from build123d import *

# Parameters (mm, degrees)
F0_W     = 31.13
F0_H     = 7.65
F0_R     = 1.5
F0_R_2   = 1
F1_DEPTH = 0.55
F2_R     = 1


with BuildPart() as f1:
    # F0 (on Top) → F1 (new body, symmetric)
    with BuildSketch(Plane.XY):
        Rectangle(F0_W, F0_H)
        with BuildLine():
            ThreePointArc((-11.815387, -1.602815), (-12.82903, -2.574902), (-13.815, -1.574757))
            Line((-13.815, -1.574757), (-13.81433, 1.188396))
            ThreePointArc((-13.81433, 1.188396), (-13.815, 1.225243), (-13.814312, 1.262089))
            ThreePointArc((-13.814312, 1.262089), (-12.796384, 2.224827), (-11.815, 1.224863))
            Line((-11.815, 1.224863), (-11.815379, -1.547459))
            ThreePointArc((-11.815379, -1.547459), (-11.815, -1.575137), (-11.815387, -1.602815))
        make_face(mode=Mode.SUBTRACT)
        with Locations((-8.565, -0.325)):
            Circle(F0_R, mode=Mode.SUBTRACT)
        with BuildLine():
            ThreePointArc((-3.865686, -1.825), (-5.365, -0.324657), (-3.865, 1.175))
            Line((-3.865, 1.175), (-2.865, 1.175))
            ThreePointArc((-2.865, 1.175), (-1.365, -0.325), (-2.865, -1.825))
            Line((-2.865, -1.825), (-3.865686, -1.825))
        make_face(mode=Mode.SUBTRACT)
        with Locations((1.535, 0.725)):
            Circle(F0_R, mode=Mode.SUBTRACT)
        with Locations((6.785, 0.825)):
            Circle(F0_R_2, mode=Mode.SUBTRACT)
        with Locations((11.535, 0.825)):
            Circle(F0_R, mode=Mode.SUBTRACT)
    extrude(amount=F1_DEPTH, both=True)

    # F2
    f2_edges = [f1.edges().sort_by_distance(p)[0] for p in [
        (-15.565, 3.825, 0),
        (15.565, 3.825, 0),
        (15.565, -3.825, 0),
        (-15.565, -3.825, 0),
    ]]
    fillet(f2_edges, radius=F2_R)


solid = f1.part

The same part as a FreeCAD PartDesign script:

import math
import FreeCAD as App
import Part
import Sketcher
from FreeCAD import Vector


def edges_at(feature, points):
    """Names of the edges that pass closest to the given points."""
    edges = feature.Shape.Edges
    near = lambda p: min(range(len(edges)), key=lambda i: edges[i].distToShape(Part.Vertex(*p))[0])
    return sorted({f"Edge{near(p) + 1}" for p in points})

doc = App.newDocument("Part")
params = doc.addObject("Spreadsheet::Sheet", "Params")
for row, (alias, value) in enumerate([
    ("sketch1_diameter", "3 mm"),
    ("sketch1_diameter2", "3 mm"),
    ("sketch1_diameter3", "2 mm"),
    ("sketch1_diameter4", "3 mm"),
    ("sketch1_radius", "1 mm"),
    ("pad1_length", "1.1 mm"),
    ("fillet_radius", "1 mm"),
], start=1):
    params.set(f"A{row}", alias)
    params.set(f"B{row}", "=" + value)
    params.setAlias(f"B{row}", alias)

body = doc.addObject("PartDesign::Body", "Body")

# Sketch on XY plane
sketch1 = doc.addObject("Sketcher::SketchObject", "Sketch")
body.addObject(sketch1)
sketch1.AttachmentSupport = (doc.XY_Plane, [""])
sketch1.MapMode = "FlatFace"
sketch1.addGeometry(Part.LineSegment(Vector(-15.565, 3.825, 0), Vector(-15.565, -3.825, 0)), False)
sketch1.addGeometry(Part.LineSegment(Vector(-15.565, -3.825, 0), Vector(15.565, -3.825, 0)), False)
sketch1.addGeometry(Part.LineSegment(Vector(15.565, -3.825, 0), Vector(15.565, 3.825, 0)), False)
sketch1.addGeometry(Part.LineSegment(Vector(15.565, 3.825, 0), Vector(-15.565, 3.825, 0)), False)
sketch1.addGeometry(Part.ArcOfCircle(Part.Circle(Vector(-12.815285, -1.574992, 0), Vector(0, 0, 1), 1.000285), math.radians(-1.593863), math.radians(1.577303)), False)
sketch1.addGeometry(Part.ArcOfCircle(Part.Circle(Vector(-12.815, -1.575, 0), Vector(0, 0, 1), 1), math.radians(179.986051), math.radians(358.406139)), False)
sketch1.addGeometry(Part.LineSegment(Vector(-13.815, -1.574757, 0), Vector(-13.81433, 1.188396, 0)), False)
sketch1.addGeometry(Part.ArcOfCircle(Part.Circle(Vector(-12.814908, 1.224998, 0), Vector(0, 0, 1), 1.000092), math.radians(177.874573), math.radians(182.097437)), False)
sketch1.addGeometry(Part.ArcOfCircle(Part.Circle(Vector(-12.815, 1.225, 0), Vector(0, 0, 1), 1), math.radians(-0.007865), math.radians(177.874485)), False)
sketch1.addGeometry(Part.LineSegment(Vector(-11.815, 1.224863, 0), Vector(-11.815379, -1.547459, 0)), False)
sketch1.addGeometry(Part.Circle(Vector(-8.565, -0.325, 0), Vector(0, 0, 1), 1.5), False)
sketch1.addGeometry(Part.LineSegment(Vector(-2.865, -1.825, 0), Vector(-3.865686, -1.825, 0)), False)
sketch1.addGeometry(Part.ArcOfCircle(Part.Circle(Vector(-3.865, -0.325, 0), Vector(0, 0, 1), 1.5), math.radians(90.000001), math.radians(269.973795)), False)
sketch1.addGeometry(Part.LineSegment(Vector(-3.865, 1.175, 0), Vector(-2.865, 1.175, 0)), False)
sketch1.addGeometry(Part.ArcOfCircle(Part.Circle(Vector(-2.865, -0.325, 0), Vector(0, 0, 1), 1.5), math.radians(-90), math.radians(90)), False)
sketch1.addGeometry(Part.Circle(Vector(1.535, 0.725, 0), Vector(0, 0, 1), 1.5), False)
sketch1.addGeometry(Part.Circle(Vector(6.785, 0.825, 0), Vector(0, 0, 1), 1), False)
sketch1.addGeometry(Part.Circle(Vector(11.535, 0.825, 0), Vector(0, 0, 1), 1.5), False)
sketch1.addConstraint(Sketcher.Constraint("Coincident", 0, 2, 1, 1))
sketch1.addConstraint(Sketcher.Constraint("Coincident", 1, 2, 2, 1))
sketch1.addConstraint(Sketcher.Constraint("Coincident", 2, 2, 3, 1))
sketch1.addConstraint(Sketcher.Constraint("Coincident", 3, 2, 0, 1))
sketch1.addConstraint(Sketcher.Constraint("Coincident", 4, 1, 5, 2))
sketch1.addConstraint(Sketcher.Constraint("Coincident", 5, 1, 6, 1))
sketch1.addConstraint(Sketcher.Constraint("Coincident", 6, 2, 7, 2))
sketch1.addConstraint(Sketcher.Constraint("Coincident", 7, 1, 8, 2))
sketch1.addConstraint(Sketcher.Constraint("Coincident", 8, 1, 9, 1))
sketch1.addConstraint(Sketcher.Constraint("Coincident", 9, 2, 4, 2))
sketch1.addConstraint(Sketcher.Constraint("Coincident", 11, 2, 12, 2))
sketch1.addConstraint(Sketcher.Constraint("Coincident", 12, 1, 13, 1))
sketch1.addConstraint(Sketcher.Constraint("Coincident", 13, 2, 14, 2))
sketch1.addConstraint(Sketcher.Constraint("Coincident", 14, 1, 11, 1))
sketch1.addConstraint(Sketcher.Constraint("Vertical", 0))
sketch1.addConstraint(Sketcher.Constraint("Horizontal", 1))
sketch1.addConstraint(Sketcher.Constraint("Vertical", 2))
sketch1.addConstraint(Sketcher.Constraint("Horizontal", 3))
sketch1.addConstraint(Sketcher.Constraint("Horizontal", 11))
sketch1.addConstraint(Sketcher.Constraint("Horizontal", 13))
sketch1.addConstraint(Sketcher.Constraint("Diameter", 10, 3.0))
sketch1.addConstraint(Sketcher.Constraint("Diameter", 15, 3.0))
sketch1.addConstraint(Sketcher.Constraint("Diameter", 16, 2.0))
sketch1.addConstraint(Sketcher.Constraint("Diameter", 17, 3.0))
sketch1.addConstraint(Sketcher.Constraint("Radius", 5, 1.0))
sketch1.addConstraint(Sketcher.Constraint("Radius", 8, 1.0))
sketch1.addConstraint(Sketcher.Constraint("Radius", 12, 1.5))
sketch1.addConstraint(Sketcher.Constraint("DistanceX", 13, 1, 13, 2, 1.0))
sketch1.addConstraint(Sketcher.Constraint("DistanceX", 12, 3, 14, 3, 1.0))
sketch1.addConstraint(Sketcher.Constraint("DistanceX", 15, 3, 17, 3, 10.0))
sketch1.addConstraint(Sketcher.Constraint("DistanceX", 0, 2, 10, 3, 7.0))
sketch1.addConstraint(Sketcher.Constraint("DistanceY", 17, 3, 2, 2, 3.0))
sketch1.addConstraint(Sketcher.Constraint("DistanceY", 16, 3, 2, 2, 3.0))
sketch1.addConstraint(Sketcher.Constraint("DistanceX", 5, 1, 8, 3, 1.0))
sketch1.addConstraint(Sketcher.Constraint("DistanceX", 12, 1, 14, 3, 1.0))
sketch1.addConstraint(Sketcher.Constraint("DistanceX", 12, 3, 14, 1, 1.0))
sketch1.addConstraint(Sketcher.Constraint("DistanceX", 1, 1, 1, 2, 31.13))
sketch1.addConstraint(Sketcher.Constraint("DistanceY", 0, 2, 0, 1, 7.65))
sketch1.addConstraint(Sketcher.Constraint("DistanceY", 5, 3, 7, 3, 2.799999))
sketch1.addConstraint(Sketcher.Constraint("DistanceY", 5, 3, 8, 3, 2.800001))
sketch1.addConstraint(Sketcher.Constraint("DistanceX", 10, 3, 12, 3, 4.7))
sketch1.addConstraint(Sketcher.Constraint("DistanceX", 14, 3, 15, 3, 4.4))
sketch1.addConstraint(Sketcher.Constraint("DistanceY", 15, 3, 7, 3, 0.499998))
sketch1.addConstraint(Sketcher.Constraint("DistanceY", 15, 3, 16, 3, 0.1))
sketch1.addConstraint(Sketcher.Constraint("DistanceY", 0, 2, 10, 3, 3.5))
sketch1.addConstraint(Sketcher.Constraint("DistanceY", 1, 2, 14, 3, 3.5))
sketch1.addConstraint(Sketcher.Constraint("DistanceX", 5, 3, 10, 3, 4.25))
sketch1.addConstraint(Sketcher.Constraint("DistanceX", 15, 3, 16, 3, 5.25))
sketch1.addConstraint(Sketcher.Constraint("DistanceX", 5, 3, -1, 1, 12.815))
sketch1.addConstraint(Sketcher.Constraint("DistanceY", 5, 3, -1, 1, 1.575))
sketch1.addConstraint(Sketcher.Constraint("Radius", 4, 1.000285))
sketch1.addConstraint(Sketcher.Constraint("Radius", 7, 1.000092))
sketch1.addConstraint(Sketcher.Constraint("DistanceX", 4, 3, 4, 1, 0.999898))
sketch1.addConstraint(Sketcher.Constraint("DistanceY", 5, 1, 9, 2, 0.027298))
sketch1.addConstraint(Sketcher.Constraint("DistanceX", 4, 1, 11, 2, 7.949701))
sketch1.addConstraint(Sketcher.Constraint("DistanceX", 11, 2, 11, 1, 1.000686))
sketch1.addConstraint(Sketcher.Constraint("DistanceX", 6, 2, -1, 1, 13.81433))
sketch1.addConstraint(Sketcher.Constraint("DistanceY", -1, 1, 7, 1, 1.262089))
sketch1.addConstraint(Sketcher.Constraint("DistanceX", 9, 2, -1, 1, 11.815379))
sketch1.addConstraint(Sketcher.Constraint("DistanceY", 4, 1, 8, 1, 2.827678))
sketch1.setExpression("Constraints[20]", "Params.sketch1_diameter")
sketch1.setExpression("Constraints[21]", "Params.sketch1_diameter2")
sketch1.setExpression("Constraints[22]", "Params.sketch1_diameter3")
sketch1.setExpression("Constraints[23]", "Params.sketch1_diameter4")
sketch1.setExpression("Constraints[24]", "Params.sketch1_radius")
pad1 = doc.addObject("PartDesign::Pad", "Pad")
body.addObject(pad1)
pad1.Profile = sketch1
pad1.setExpression("Length", "Params.pad1_length")
pad1.Midplane = True
doc.recompute()

fillet = doc.addObject("PartDesign::Fillet", "Fillet")
body.addObject(fillet)
fillet.Base = (pad1, edges_at(pad1, [
    (-15.565, 3.825, 0),
    (15.565, 3.825, 0),
    (15.565, -3.825, 0),
    (-15.565, -3.825, 0),
]))
fillet.setExpression("Radius", "Params.fillet_radius")

doc.recompute()
